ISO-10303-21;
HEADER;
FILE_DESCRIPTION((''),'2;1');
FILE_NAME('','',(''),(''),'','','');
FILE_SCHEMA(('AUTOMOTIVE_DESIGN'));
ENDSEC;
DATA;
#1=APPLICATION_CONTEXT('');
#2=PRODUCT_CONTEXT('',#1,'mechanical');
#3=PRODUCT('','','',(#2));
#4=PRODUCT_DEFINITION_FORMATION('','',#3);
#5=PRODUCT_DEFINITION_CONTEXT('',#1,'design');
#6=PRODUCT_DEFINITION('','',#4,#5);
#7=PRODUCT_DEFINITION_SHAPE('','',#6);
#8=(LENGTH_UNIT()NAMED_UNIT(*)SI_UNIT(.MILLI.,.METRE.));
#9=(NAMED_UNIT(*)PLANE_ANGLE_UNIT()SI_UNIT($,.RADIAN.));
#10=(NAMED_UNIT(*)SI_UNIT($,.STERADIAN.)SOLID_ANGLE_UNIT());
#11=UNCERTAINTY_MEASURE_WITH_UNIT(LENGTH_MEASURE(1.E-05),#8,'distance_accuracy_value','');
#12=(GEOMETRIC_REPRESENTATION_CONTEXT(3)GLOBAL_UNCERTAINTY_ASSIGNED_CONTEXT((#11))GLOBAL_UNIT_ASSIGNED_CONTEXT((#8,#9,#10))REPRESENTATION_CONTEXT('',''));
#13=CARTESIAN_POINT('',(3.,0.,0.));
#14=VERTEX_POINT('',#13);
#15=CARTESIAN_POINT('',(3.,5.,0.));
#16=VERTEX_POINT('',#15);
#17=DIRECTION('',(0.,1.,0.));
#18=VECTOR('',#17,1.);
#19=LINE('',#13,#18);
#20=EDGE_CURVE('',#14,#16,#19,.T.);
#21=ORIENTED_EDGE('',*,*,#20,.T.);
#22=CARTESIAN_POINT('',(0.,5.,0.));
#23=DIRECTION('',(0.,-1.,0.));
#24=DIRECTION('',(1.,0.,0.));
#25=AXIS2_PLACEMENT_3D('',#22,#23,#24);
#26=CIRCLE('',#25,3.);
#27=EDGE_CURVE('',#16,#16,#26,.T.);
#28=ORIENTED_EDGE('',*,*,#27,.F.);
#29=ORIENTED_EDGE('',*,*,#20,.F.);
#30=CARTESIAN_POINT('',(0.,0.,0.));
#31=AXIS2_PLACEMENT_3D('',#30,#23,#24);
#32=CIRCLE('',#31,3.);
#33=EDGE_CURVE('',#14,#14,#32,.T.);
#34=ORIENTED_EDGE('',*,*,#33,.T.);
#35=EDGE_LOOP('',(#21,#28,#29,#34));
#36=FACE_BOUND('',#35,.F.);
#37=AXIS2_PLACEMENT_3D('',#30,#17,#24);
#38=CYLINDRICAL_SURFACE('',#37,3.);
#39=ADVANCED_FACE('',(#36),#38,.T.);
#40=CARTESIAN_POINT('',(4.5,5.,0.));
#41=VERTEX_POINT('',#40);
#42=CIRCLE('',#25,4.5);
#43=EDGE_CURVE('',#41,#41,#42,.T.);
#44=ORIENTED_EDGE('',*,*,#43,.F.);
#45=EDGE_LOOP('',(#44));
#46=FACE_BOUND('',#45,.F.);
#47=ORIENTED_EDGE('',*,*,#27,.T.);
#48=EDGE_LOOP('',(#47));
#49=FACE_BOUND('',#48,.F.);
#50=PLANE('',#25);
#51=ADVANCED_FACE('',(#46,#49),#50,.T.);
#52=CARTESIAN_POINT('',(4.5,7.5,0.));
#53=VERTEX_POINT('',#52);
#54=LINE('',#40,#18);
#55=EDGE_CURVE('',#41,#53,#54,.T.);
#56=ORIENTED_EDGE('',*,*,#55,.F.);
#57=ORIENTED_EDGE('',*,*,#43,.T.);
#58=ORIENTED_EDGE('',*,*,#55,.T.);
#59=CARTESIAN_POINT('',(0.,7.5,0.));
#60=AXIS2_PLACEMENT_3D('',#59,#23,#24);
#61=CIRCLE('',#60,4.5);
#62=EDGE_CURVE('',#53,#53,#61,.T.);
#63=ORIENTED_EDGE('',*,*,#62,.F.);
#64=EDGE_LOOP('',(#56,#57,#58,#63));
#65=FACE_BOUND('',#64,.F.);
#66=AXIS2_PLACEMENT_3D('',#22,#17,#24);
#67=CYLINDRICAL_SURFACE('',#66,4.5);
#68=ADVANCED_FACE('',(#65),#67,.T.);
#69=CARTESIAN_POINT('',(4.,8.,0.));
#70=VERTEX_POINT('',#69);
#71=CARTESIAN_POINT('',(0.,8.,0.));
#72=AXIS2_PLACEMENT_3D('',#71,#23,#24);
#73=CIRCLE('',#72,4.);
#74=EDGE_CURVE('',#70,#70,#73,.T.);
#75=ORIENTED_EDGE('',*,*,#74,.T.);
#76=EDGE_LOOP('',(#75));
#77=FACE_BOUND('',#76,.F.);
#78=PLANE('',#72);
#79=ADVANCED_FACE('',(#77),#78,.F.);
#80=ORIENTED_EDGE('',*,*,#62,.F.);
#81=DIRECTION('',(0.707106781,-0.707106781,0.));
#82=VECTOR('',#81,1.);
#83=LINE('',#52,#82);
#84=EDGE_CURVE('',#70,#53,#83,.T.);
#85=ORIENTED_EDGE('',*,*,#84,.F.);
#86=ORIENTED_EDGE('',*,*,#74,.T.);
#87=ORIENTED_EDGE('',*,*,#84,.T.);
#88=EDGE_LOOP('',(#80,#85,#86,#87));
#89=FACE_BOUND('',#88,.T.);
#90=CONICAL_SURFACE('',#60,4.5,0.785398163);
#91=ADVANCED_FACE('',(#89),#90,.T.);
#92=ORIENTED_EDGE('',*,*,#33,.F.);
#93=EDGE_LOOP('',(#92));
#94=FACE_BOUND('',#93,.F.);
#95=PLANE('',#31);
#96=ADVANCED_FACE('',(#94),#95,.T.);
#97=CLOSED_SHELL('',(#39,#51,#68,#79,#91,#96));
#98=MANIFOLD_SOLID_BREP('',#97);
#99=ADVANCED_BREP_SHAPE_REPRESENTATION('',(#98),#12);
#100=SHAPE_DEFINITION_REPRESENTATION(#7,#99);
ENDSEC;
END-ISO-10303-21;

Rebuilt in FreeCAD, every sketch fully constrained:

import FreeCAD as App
import Part
import Sketcher

V = App.Vector
Q = App.Units.Quantity


def edges_at(feature, points):
    """Names of the edges that pass closest to the given points."""
    edges = feature.Shape.Edges
    near = lambda p: min(range(len(edges)), key=lambda i: edges[i].distToShape(Part.Vertex(*p))[0])
    return sorted({f"Edge{near(p) + 1}" for p in points})


def add_polygon(sketch, points):
    """Adds a closed chain of lines whose ends are joined by coincident constraints."""
    first, n = sketch.GeometryCount, len(points)
    for a, b in zip(points, points[1:] + points[:1]):
        sketch.addGeometry(Part.LineSegment(App.Vector(*a, 0), App.Vector(*b, 0)), False)
    for i in range(n):
        sketch.addConstraint(Sketcher.Constraint("Coincident", first + i, 2, first + (i + 1) % n, 1))

doc = App.newDocument("Part")
body = doc.addObject("PartDesign::Body", "Body")

# Sketch on XY plane
sketch1 = doc.addObject("Sketcher::SketchObject", "Sketch")
body.addObject(sketch1)
sketch1.AttachmentSupport = (doc.XY_Plane, [""])
sketch1.MapMode = "FlatFace"
add_polygon(sketch1, [(0, 8), (0, 0), (3, 0), (3, 5), (4.5, 5), (4.5, 8)])  # lines 0-5
sketch1.addConstraint([
    Sketcher.Constraint("Vertical", 0),
    Sketcher.Constraint("Horizontal", 1),
    Sketcher.Constraint("Vertical", 2),
    Sketcher.Constraint("Horizontal", 3),
    Sketcher.Constraint("Vertical", 4),
    Sketcher.Constraint("Horizontal", 5),
    Sketcher.Constraint("Coincident", 0, 2, -1, 1),
    Sketcher.Constraint("Equal", 1, 4),
    Sketcher.Constraint("DistanceX", 1, 1, 1, 2, Q("3 mm")),
    Sketcher.Constraint("DistanceY", 2, 1, 2, 2, Q("5 mm")),
    Sketcher.Constraint("DistanceX", 3, 1, 3, 2, Q("1.5 mm")),
])
revolution = doc.addObject("PartDesign::Revolution", "Revolution")
body.addObject(revolution)
revolution.Profile = sketch1
revolution.ReferenceAxis = (sketch1, ["V_Axis"])
revolution.Angle = 360
doc.recompute()

chamfer = doc.addObject("PartDesign::Chamfer", "Chamfer")
body.addObject(chamfer)
chamfer.Base = (revolution, edges_at(revolution, [(-4.5, 8, 0)]))
chamfer.Size = 0.5

doc.recompute()
